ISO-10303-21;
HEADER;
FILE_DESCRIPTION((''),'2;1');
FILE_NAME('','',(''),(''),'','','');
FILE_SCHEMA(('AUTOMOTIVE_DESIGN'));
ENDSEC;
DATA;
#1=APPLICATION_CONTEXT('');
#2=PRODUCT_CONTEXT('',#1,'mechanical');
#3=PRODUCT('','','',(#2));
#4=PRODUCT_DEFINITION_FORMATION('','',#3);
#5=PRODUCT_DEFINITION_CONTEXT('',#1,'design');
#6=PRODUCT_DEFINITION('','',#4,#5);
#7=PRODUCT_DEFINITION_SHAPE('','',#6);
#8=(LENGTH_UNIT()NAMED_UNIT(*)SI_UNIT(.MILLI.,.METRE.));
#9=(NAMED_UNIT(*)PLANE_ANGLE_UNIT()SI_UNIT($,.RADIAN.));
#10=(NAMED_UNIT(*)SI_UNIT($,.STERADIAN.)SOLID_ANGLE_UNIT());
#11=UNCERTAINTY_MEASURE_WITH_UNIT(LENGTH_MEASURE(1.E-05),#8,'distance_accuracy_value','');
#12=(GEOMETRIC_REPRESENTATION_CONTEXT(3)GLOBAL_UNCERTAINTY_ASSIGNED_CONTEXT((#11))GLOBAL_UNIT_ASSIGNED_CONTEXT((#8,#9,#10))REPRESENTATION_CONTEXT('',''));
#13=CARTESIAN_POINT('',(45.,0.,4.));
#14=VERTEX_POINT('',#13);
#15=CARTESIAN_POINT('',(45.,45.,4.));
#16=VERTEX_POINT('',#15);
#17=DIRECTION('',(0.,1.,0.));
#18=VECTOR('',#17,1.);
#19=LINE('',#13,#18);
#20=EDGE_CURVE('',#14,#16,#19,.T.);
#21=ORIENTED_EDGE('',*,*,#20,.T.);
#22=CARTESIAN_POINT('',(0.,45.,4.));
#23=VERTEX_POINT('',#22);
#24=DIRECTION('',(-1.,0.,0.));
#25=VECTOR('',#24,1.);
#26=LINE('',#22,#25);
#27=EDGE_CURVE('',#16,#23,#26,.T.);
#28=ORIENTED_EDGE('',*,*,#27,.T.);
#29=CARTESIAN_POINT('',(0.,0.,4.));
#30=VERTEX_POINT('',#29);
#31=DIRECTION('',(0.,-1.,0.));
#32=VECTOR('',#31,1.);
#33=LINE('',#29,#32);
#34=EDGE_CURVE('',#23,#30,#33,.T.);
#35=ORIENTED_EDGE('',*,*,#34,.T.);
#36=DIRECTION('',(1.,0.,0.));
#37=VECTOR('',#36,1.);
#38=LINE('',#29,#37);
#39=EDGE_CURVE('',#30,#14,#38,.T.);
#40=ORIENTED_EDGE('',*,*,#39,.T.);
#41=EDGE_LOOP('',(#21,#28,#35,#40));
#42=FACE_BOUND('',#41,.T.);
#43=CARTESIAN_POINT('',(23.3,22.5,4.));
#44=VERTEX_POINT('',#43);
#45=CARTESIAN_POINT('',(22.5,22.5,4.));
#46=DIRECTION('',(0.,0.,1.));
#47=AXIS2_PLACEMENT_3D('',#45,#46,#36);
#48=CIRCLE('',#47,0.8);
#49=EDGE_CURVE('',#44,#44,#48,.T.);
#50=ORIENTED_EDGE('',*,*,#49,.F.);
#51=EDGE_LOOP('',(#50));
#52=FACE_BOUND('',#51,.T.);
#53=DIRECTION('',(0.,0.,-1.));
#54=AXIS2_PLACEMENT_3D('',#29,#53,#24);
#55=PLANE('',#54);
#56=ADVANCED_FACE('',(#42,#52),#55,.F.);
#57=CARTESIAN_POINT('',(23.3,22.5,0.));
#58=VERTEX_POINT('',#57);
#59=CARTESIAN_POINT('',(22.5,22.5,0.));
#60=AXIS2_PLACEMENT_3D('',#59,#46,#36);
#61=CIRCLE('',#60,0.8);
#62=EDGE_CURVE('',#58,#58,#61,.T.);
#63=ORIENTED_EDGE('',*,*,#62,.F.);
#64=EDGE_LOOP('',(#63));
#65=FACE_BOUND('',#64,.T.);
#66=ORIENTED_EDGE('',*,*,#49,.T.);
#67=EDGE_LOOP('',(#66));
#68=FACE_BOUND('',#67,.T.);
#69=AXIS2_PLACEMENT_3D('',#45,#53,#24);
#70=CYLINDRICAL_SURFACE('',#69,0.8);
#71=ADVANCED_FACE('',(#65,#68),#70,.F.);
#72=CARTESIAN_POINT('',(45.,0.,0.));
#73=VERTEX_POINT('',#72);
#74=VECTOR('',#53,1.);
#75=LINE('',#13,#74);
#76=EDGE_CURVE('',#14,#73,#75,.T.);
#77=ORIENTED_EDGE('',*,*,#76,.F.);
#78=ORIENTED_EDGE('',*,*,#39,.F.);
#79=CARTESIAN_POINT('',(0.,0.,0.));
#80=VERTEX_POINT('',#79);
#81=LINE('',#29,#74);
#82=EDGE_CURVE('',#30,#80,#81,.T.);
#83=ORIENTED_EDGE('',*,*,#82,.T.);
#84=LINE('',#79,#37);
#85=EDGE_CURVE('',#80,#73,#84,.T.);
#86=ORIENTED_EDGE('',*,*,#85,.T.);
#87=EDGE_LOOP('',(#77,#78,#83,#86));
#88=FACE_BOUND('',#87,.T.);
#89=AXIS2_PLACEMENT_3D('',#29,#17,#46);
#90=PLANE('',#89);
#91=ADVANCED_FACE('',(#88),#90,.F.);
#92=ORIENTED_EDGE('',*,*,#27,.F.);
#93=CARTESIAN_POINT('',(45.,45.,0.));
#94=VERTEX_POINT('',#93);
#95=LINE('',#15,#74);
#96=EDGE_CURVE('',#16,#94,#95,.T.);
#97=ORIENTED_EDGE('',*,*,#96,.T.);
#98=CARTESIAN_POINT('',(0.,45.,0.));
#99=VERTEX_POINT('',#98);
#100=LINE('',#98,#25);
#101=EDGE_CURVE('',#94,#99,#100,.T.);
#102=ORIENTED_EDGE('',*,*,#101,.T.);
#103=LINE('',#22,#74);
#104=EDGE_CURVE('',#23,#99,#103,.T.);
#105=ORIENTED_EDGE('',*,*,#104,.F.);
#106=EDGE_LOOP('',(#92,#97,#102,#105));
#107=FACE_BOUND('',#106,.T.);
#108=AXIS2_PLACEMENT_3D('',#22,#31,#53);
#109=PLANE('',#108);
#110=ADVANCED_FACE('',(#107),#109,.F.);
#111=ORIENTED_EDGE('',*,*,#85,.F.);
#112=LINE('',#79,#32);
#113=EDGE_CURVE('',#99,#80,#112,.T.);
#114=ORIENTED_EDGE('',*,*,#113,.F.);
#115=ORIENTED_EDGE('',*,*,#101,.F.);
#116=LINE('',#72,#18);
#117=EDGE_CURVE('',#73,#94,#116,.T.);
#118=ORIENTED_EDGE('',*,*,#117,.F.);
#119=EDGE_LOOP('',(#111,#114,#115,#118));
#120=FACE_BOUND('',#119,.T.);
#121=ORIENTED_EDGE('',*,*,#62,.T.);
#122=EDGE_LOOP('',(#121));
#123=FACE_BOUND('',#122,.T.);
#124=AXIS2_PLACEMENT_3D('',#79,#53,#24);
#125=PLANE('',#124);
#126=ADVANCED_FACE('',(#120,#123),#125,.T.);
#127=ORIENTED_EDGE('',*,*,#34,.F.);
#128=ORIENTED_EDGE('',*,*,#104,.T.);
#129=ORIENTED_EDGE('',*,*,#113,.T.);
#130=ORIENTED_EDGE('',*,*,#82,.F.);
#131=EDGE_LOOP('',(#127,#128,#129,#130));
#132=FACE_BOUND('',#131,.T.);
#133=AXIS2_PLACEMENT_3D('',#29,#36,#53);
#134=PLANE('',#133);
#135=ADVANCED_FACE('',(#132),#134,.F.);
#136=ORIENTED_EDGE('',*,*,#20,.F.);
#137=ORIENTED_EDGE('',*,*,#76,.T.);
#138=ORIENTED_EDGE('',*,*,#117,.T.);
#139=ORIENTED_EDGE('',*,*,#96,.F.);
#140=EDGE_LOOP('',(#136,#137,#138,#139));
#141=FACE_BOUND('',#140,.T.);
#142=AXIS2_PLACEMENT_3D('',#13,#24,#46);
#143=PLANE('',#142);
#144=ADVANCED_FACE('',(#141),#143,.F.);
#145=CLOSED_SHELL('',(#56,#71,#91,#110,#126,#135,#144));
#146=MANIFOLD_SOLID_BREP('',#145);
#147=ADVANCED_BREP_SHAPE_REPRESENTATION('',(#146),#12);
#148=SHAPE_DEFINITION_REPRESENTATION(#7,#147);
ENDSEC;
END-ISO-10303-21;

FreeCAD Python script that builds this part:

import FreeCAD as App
import Part
import Sketcher


def add_polygon(sketch, points):
    """Adds a closed chain of lines whose ends are joined by coincident constraints."""
    first, n = sketch.GeometryCount, len(points)
    for a, b in zip(points, points[1:] + points[:1]):
        sketch.addGeometry(Part.LineSegment(App.Vector(*a, 0), App.Vector(*b, 0)), False)
    for i in range(n):
        sketch.addConstraint(Sketcher.Constraint("Coincident", first + i, 2, first + (i + 1) % n, 1))

doc = App.newDocument("Part")
body = doc.addObject("PartDesign::Body", "Body")

# Sketch on XY plane
sketch1 = body.newObject("Sketcher::SketchObject", "Sketch")
sketch1.AttachmentSupport = (doc.getObject("XY_Plane"), [""])
sketch1.MapMode = "FlatFace"
add_polygon(sketch1, [(0, 45), (0, 0), (45, 0), (45, 45)])  # lines 0-3
sketch1.addGeometry(Part.Circle(App.Vector(22.5, 22.5, 0), App.Vector(0, 0, 1), 0.8), False)  # 4
sketch1.addConstraint(Sketcher.Constraint("Vertical", 0))
sketch1.addConstraint(Sketcher.Constraint("Horizontal", 1))
sketch1.addConstraint(Sketcher.Constraint("Vertical", 2))
sketch1.addConstraint(Sketcher.Constraint("Horizontal", 3))
sketch1.addConstraint(Sketcher.Constraint("Coincident", 0, 2, -1, 1))
sketch1.addConstraint(Sketcher.Constraint("Equal", 3, 0))
sketch1.addConstraint(Sketcher.Constraint("Diameter", 4, 1.6))
sketch1.addConstraint(Sketcher.Constraint("DistanceX", 1, 1, 1, 2, 45.0))
sketch1.addConstraint(Sketcher.Constraint("DistanceX", -1, 1, 4, 3, 22.5))
sketch1.addConstraint(Sketcher.Constraint("DistanceY", -1, 1, 4, 3, 22.5))
pad1 = body.newObject("PartDesign::Pad", "Pad")
pad1.Profile = sketch1
pad1.Length = 4

doc.recompute()
